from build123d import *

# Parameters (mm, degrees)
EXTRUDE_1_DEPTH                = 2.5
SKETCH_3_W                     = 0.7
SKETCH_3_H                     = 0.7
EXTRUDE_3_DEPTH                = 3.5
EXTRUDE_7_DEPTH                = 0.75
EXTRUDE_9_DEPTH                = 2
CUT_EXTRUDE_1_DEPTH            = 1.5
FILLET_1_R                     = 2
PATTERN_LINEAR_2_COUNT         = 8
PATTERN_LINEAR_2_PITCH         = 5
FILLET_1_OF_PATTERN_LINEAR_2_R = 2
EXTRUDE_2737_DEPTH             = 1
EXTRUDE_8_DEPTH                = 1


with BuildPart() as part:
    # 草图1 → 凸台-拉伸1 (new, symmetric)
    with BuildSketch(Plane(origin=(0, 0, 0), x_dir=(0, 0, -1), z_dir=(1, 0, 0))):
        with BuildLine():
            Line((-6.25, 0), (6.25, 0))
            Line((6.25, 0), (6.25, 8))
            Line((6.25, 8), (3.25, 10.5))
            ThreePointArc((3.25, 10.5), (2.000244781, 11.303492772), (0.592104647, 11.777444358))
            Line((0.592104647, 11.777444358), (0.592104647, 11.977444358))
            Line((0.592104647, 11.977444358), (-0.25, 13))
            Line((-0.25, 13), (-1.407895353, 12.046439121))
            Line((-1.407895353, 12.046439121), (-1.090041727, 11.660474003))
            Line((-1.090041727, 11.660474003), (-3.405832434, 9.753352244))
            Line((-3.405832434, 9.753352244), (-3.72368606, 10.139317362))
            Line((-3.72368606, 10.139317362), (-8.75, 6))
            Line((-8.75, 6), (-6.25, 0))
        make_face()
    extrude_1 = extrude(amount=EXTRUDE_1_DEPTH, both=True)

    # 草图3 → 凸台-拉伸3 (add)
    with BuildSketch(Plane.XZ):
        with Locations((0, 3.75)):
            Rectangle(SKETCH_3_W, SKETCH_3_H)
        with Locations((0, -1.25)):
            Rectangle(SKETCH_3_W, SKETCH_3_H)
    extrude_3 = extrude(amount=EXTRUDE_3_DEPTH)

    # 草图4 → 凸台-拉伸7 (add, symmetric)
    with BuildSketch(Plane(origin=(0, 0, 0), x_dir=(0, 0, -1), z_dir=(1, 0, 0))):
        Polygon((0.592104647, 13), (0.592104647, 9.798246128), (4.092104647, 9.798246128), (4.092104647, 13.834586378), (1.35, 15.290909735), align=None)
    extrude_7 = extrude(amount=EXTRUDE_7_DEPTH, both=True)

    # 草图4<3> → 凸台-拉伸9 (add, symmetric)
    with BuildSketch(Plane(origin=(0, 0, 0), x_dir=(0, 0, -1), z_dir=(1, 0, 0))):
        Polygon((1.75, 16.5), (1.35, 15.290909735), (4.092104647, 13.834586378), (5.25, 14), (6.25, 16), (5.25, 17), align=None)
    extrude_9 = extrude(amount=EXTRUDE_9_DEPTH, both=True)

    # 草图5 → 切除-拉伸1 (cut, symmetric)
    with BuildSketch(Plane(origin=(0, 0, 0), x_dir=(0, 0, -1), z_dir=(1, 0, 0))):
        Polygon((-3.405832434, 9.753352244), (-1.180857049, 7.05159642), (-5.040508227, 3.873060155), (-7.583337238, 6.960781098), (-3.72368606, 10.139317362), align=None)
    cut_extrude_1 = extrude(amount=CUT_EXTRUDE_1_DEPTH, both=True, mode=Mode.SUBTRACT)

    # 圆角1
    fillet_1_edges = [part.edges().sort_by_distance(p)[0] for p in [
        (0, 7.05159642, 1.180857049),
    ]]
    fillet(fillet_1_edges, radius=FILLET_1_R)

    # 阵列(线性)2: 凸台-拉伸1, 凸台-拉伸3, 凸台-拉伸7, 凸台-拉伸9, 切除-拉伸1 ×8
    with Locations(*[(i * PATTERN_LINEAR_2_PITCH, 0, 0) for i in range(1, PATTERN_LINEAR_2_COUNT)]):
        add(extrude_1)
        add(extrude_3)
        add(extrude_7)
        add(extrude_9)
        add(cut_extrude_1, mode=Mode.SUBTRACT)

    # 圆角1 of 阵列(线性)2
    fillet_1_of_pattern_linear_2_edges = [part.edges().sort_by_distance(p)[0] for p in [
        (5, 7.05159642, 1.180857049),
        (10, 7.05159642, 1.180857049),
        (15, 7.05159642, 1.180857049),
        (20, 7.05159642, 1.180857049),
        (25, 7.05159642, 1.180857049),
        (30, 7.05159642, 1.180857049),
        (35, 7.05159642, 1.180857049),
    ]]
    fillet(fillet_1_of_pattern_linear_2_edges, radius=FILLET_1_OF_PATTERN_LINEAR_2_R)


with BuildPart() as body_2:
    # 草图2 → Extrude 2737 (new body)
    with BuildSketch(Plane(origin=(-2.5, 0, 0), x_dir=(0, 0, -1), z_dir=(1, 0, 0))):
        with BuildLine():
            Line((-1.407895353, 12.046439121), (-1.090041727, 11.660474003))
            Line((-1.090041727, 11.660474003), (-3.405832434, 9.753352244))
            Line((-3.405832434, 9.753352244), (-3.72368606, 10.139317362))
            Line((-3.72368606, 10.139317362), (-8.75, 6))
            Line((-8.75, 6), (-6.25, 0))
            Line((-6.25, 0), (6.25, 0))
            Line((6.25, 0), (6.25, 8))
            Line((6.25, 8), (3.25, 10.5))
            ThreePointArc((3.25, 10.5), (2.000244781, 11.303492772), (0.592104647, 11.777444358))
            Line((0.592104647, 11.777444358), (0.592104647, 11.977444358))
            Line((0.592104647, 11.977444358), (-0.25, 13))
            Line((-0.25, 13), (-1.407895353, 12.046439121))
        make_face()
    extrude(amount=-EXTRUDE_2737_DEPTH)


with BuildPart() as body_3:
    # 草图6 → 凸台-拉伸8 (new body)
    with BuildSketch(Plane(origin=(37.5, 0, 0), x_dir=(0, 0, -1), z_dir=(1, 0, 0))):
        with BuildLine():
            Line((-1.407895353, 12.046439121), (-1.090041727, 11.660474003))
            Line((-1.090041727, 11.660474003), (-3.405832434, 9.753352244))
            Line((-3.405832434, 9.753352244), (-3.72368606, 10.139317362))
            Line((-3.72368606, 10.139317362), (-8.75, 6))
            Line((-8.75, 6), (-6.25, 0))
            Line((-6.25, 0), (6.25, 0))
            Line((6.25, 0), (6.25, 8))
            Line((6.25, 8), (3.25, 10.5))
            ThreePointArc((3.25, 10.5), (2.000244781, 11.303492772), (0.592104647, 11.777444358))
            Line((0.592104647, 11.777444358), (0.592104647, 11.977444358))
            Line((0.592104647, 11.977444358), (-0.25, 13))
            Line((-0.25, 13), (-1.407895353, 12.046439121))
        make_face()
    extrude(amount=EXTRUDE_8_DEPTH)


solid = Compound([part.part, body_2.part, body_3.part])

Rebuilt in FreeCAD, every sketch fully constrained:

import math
import FreeCAD as App
import Part
import Sketcher
from FreeCAD import Vector
Q = App.Units.Quantity


def edges_at(feature, points):
    """Names of the edges that pass closest to the given points."""
    edges = feature.Shape.Edges
    near = lambda p: min(range(len(edges)), key=lambda i: edges[i].distToShape(Part.Vertex(*p))[0])
    return sorted({f"Edge{near(p) + 1}" for p in points})


def add_polygon(sketch, points):
    """Adds a closed chain of lines whose ends are joined by coincident constraints."""
    first, n = sketch.GeometryCount, len(points)
    for a, b in zip(points, points[1:] + points[:1]):
        sketch.addGeometry(Part.LineSegment(App.Vector(*a, 0), App.Vector(*b, 0)), False)
    for i in range(n):
        sketch.addConstraint(Sketcher.Constraint("Coincident", first + i, 2, first + (i + 1) % n, 1))

doc = App.newDocument("Part")
params = doc.addObject("Spreadsheet::Sheet", "Params")
for row, (alias, value) in enumerate([
    ("sketch1_width", "8 mm"),
    ("sketch1_length", "3 mm"),
    ("sketch1_width2", "0.2 mm"),
    ("sketch1_height", "12.5 mm"),
    ("sketch1_length2", "1.5 mm"),
    ("pad1_length", "5 mm"),
    ("sketch2_width", "0.7 mm"),
    ("pad2_length", "3.5 mm"),
    ("sketch3_height", "3.5 mm"),
    ("pad3_length", "1.5 mm"),
    ("pad4_length", "4 mm"),
    ("sketch5_length", "5 mm"),
    ("sketch5_length2", "4 mm"),
    ("sketch5_length3", "3.5 mm"),
    ("pocket1_length", "3 mm"),
    ("fillet_radius", "2 mm"),
    ("linearpattern_pitch", "5 mm"),
    ("fillet2_radius", "2 mm"),
    ("sketch6_width", "8 mm"),
    ("sketch6_length", "3 mm"),
    ("sketch6_width2", "0.2 mm"),
    ("sketch6_height", "12.5 mm"),
    ("sketch6_length2", "0.5 mm"),
    ("pad5_length", "1 mm"),
    ("sketch7_width", "8 mm"),
    ("sketch7_length", "3 mm"),
    ("sketch7_width2", "0.2 mm"),
    ("sketch7_height", "12.5 mm"),
    ("sketch7_length2", "0.5 mm"),
    ("pad6_length", "1 mm"),
], start=1):
    params.set(f"A{row}", alias)
    params.set(f"B{row}", "=" + value)
    params.setAlias(f"B{row}", alias)

body = doc.addObject("PartDesign::Body", "Body")

# Sketch on YZ plane
sketch1 = body.newObject("Sketcher::SketchObject", "Sketch")
sketch1.AttachmentSupport = (doc.getObject("YZ_Plane"), [""])
sketch1.MapMode = "FlatFace"
sketch1.addGeometry([
    Part.LineSegment(Vector(0, 6.25, 0), Vector(0, -6.25, 0)),  # 0
    Part.LineSegment(Vector(0, -6.25, 0), Vector(8, -6.25, 0)),  # 1
    Part.LineSegment(Vector(8, -6.25, 0), Vector(10.5, -3.25, 0)),  # 2
    Part.ArcOfCircle(Part.Circle(Vector(5.86, 0.62, 0), Vector(0, 0, 1), 6.04), math.radians(-40), math.radians(-12)),  # 3
    Part.LineSegment(Vector(11.78, -0.59, 0), Vector(11.98, -0.59, 0)),  # 4
    Part.LineSegment(Vector(11.98, -0.59, 0), Vector(13, 0.25, 0)),  # 5
    Part.LineSegment(Vector(13, 0.25, 0), Vector(12.05, 1.41, 0)),  # 6
    Part.LineSegment(Vector(12.05, 1.41, 0), Vector(11.66, 1.09, 0)),  # 7
    Part.LineSegment(Vector(11.66, 1.09, 0), Vector(9.75, 3.41, 0)),  # 8
    Part.LineSegment(Vector(9.75, 3.41, 0), Vector(10.14, 3.72, 0)),  # 9
    Part.LineSegment(Vector(10.14, 3.72, 0), Vector(6, 8.75, 0)),  # 10
    Part.LineSegment(Vector(6, 8.75, 0), Vector(0, 6.25, 0)),  # 11
], False)
sketch1.addConstraint([
    Sketcher.Constraint("Coincident", 0, 2, 1, 1),
    Sketcher.Constraint("Coincident", 1, 2, 2, 1),
    Sketcher.Constraint("Tangent", 2, 2, 3, 1),
    Sketcher.Constraint("Coincident", 3, 2, 4, 1),
    Sketcher.Constraint("Coincident", 4, 2, 5, 1),
    Sketcher.Constraint("Coincident", 5, 2, 6, 1),
    Sketcher.Constraint("Coincident", 6, 2, 7, 1),
    Sketcher.Constraint("Coincident", 7, 2, 8, 1),
    Sketcher.Constraint("Coincident", 8, 2, 9, 1),
    Sketcher.Constraint("Coincident", 9, 2, 10, 1),
    Sketcher.Constraint("Coincident", 10, 2, 11, 1),
    Sketcher.Constraint("Coincident", 11, 2, 0, 1),
    Sketcher.Constraint("Vertical", 0),
    Sketcher.Constraint("Horizontal", 1),
    Sketcher.Constraint("Horizontal", 4),
    Sketcher.Constraint("Symmetric", 0, 2, 11, 2, -1, 1),
    Sketcher.Constraint("Perpendicular", 5, 6),
    Sketcher.Constraint("Perpendicular", 6, 7),
    Sketcher.Constraint("Perpendicular", 7, 8),
    Sketcher.Constraint("Perpendicular", 8, 9),
    Sketcher.Constraint("Perpendicular", 9, 10),
    Sketcher.Constraint("Equal", 7, 9),
    Sketcher.Constraint("DistanceX", 1, 1, 1, 2, 8.0),
    Sketcher.Constraint("Distance", 8, 3.0),
    Sketcher.Constraint("DistanceX", 4, 1, 4, 2, 0.2),
    Sketcher.Constraint("DistanceY", 0, 2, 0, 1, 12.5),
    Sketcher.Constraint("DistanceX", -1, 1, 5, 2, 13.0),
    Sketcher.Constraint("DistanceX", -1, 1, 10, 2, 6.0),
    Sketcher.Constraint("DistanceY", 1, 2, 2, 2, 3.0),
    Sketcher.Constraint("DistanceY", 4, 2, 6, 2, 2.0),
    Sketcher.Constraint("Distance", 6, 1.5),
    Sketcher.Constraint("Distance", 7, 0.5),
    Sketcher.Constraint("Distance", 11, 6.5),
    Sketcher.Constraint("DistanceX", -1, 1, 2, 2, 10.5),
    Sketcher.Constraint("DistanceY", 2, 2, 5, 2, 3.5),
])
sketch1.setExpression("Constraints[22]", "Params.sketch1_width")
sketch1.setExpression("Constraints[23]", "Params.sketch1_length")
sketch1.setExpression("Constraints[24]", "Params.sketch1_width2")
sketch1.setExpression("Constraints[25]", "Params.sketch1_height")
sketch1.setExpression("Constraints[30]", "Params.sketch1_length2")
pad1 = body.newObject("PartDesign::Pad", "Pad")
pad1.Profile = sketch1
pad1.setExpression("Length", "Params.pad1_length")
pad1.Midplane = True

# Sketch on XZ plane
sketch2 = body.newObject("Sketcher::SketchObject", "Sketch001")
sketch2.AttachmentSupport = (doc.getObject("XZ_Plane"), [""])
sketch2.MapMode = "FlatFace"
add_polygon(sketch2, [(-0.3, 4.1), (-0.3, 3.4), (0.3, 3.4), (0.3, 4.1)])  # lines 0-3
add_polygon(sketch2, [(-0.3, -0.9), (-0.3, -1.6), (0.3, -1.6), (0.3, -0.9)])  # lines 4-7
sketch2.addConstraint([
    Sketcher.Constraint("Vertical", 0),
    Sketcher.Constraint("Horizontal", 1),
    Sketcher.Constraint("Vertical", 2),
    Sketcher.Constraint("Horizontal", 3),
    Sketcher.Constraint("Vertical", 4),
    Sketcher.Constraint("Horizontal", 5),
    Sketcher.Constraint("Vertical", 6),
    Sketcher.Constraint("Horizontal", 7),
    Sketcher.Constraint("Vertical", 3, 2, 4, 2),
    Sketcher.Constraint("Vertical", 2, 2, 5, 2),
    Sketcher.Constraint("Equal", 7, 0),
    Sketcher.Constraint("Equal", 2, 4),
    Sketcher.Constraint("DistanceX", 1, 1, 1, 2, 0.7),
    Sketcher.Constraint("DistanceY", 4, 2, 0, 2, 5.0),
    Sketcher.Constraint("DistanceY", -1, 1, 0, 2, 3.4),
    Sketcher.Constraint("DistanceX", 0, 2, -1, 1, 0.35),
])
sketch2.setExpression("Constraints[20]", "Params.sketch2_width")
pad2 = body.newObject("PartDesign::Pad", "Pad001")
pad2.Profile = sketch2
pad2.setExpression("Length", "Params.pad2_length")

# Sketch on YZ plane
sketch3 = body.newObject("Sketcher::SketchObject", "Sketch002")
sketch3.AttachmentSupport = (doc.getObject("YZ_Plane"), [""])
sketch3.MapMode = "FlatFace"
add_polygon(sketch3, [(13, -0.6), (9.8, -0.6), (9.8, -4.1), (13.8, -4.1), (15.3, -1.4)])  # lines 0-4
sketch3.addConstraint([
    Sketcher.Constraint("Horizontal", 0),
    Sketcher.Constraint("Vertical", 1),
    Sketcher.Constraint("Horizontal", 2),
    Sketcher.Constraint("DistanceY", 1, 2, 1, 1, 3.5),
    Sketcher.Constraint("DistanceX", -1, 1, 4, 2, 13.0),
    Sketcher.Constraint("DistanceY", 3, 2, -1, 1, 1.35),
    Sketcher.Constraint("DistanceX", 2, 1, 2, 2, 4.03634),
    Sketcher.Constraint("Distance", 4, 2.413022),
    Sketcher.Constraint("DistanceX", 0, 2, 0, 1, 3.201754),
    Sketcher.Constraint("DistanceX", -1, 1, 3, 2, 15.29091),
])
sketch3.setExpression("Constraints[8]", "Params.sketch3_height")
pad3 = body.newObject("PartDesign::Pad", "Pad002")
pad3.Profile = sketch3
pad3.setExpression("Length", "Params.pad3_length")
pad3.Midplane = True

# Sketch on YZ plane
sketch4 = body.newObject("Sketcher::SketchObject", "Sketch003")
sketch4.AttachmentSupport = (doc.getObject("YZ_Plane"), [""])
sketch4.MapMode = "FlatFace"
add_polygon(sketch4, [(16.5, -1.8), (15.3, -1.4), (13.8, -4.1), (14, -5.2), (16, -6.2), (17, -5.2)])  # lines 0-5
sketch4.addConstraint([
    Sketcher.Constraint("Parallel", 2, 5),
    Sketcher.Constraint("Horizontal", 2, 2, 4, 2),
    Sketcher.Constraint("Angle", 4, Q("45 deg")),
    Sketcher.Constraint("DistanceX", -1, 1, 2, 2, 14.0),
    Sketcher.Constraint("DistanceX", -1, 1, 3, 2, 16.0),
    Sketcher.Constraint("DistanceX", -1, 1, 4, 2, 17.0),
    Sketcher.Constraint("DistanceX", -1, 1, 5, 2, 16.5),
    Sketcher.Constraint("DistanceY", 2, 2, 0, 2, 3.9),
    Sketcher.Constraint("DistanceY", 5, 2, 0, 2, 0.4),
    Sketcher.Constraint("DistanceY", 0, 2, -1, 1, 1.35),
    Sketcher.Constraint("Distance", 0, 1.273538),
    Sketcher.Constraint("Distance", 2, 1.169651),
])
pad4 = body.newObject("PartDesign::Pad", "Pad003")
pad4.Profile = sketch4
pad4.setExpression("Length", "Params.pad4_length")
pad4.Midplane = True

# Sketch on YZ plane
sketch5 = body.newObject("Sketcher::SketchObject", "Sketch004")
sketch5.AttachmentSupport = (doc.getObject("YZ_Plane"), [""])
sketch5.MapMode = "FlatFace"
add_polygon(sketch5, [(7.05, 1.18), (9.75, 3.41), (10.14, 3.72), (6.96, 7.58), (3.87, 5.04)])  # lines 0-4
sketch5.addConstraint([
    Sketcher.Constraint("Parallel", 0, 1),
    Sketcher.Constraint("Perpendicular", 1, 2),
    Sketcher.Constraint("Perpendicular", 2, 3),
    Sketcher.Constraint("Perpendicular", 3, 4),
    Sketcher.Constraint("Distance", 2, 5.0),
    Sketcher.Constraint("Distance", 3, 4.0),
    Sketcher.Constraint("Distance", 0, 3.5),
    Sketcher.Constraint("DistanceX", -1, 1, 2, 2, 6.960781),
    Sketcher.Constraint("DistanceX", -1, 1, 3, 2, 3.87306),
    Sketcher.Constraint("DistanceY", -1, 1, 3, 2, 5.040508),
])
sketch5.setExpression("Constraints[9]", "Params.sketch5_length")
sketch5.setExpression("Constraints[10]", "Params.sketch5_length2")
sketch5.setExpression("Constraints[11]", "Params.sketch5_length3")
pocket1 = body.newObject("PartDesign::Pocket", "Pocket")
pocket1.Profile = sketch5
pocket1.setExpression("Length", "Params.pocket1_length")
pocket1.Midplane = True
doc.recompute()

fillet = body.newObject("PartDesign::Fillet", "Fillet")
fillet.Base = (pocket1, edges_at(pocket1, [(0, 7.052, 1.181)]))
fillet.setExpression("Radius", "Params.fillet_radius")
doc.recompute()

linearpattern = body.newObject("PartDesign::LinearPattern", "LinearPattern")
linearpattern.Originals = [pad1, pad2, pad3, pad4, pocket1]
linearpattern.Direction = (doc.getObject("X_Axis"), [""])
linearpattern.Mode = "offset"
linearpattern.setExpression("Offset", "Params.linearpattern_pitch")
linearpattern.Occurrences = 8
body.Tip = linearpattern
doc.recompute()

fillet2 = body.newObject("PartDesign::Fillet", "Fillet001")
fillet2.Base = (linearpattern, edges_at(linearpattern, [
    (5, 7.052, 1.181),
    (10, 7.052, 1.181),
    (15, 7.052, 1.181),
    (20, 7.052, 1.181),
    (25, 7.052, 1.181),
    (30, 7.052, 1.181),
    (35, 7.052, 1.181),
]))
fillet2.setExpression("Radius", "Params.fillet2_radius")
body2 = doc.addObject("PartDesign::Body", "Body001")

# Sketch on YZ plane
sketch6 = body2.newObject("Sketcher::SketchObject", "Sketch005")
sketch6.AttachmentSupport = (doc.getObject("YZ_Plane001"), [""])
sketch6.MapMode = "FlatFace"
sketch6.AttachmentOffset = App.Placement(Vector(0, 0, -2.5), App.Rotation())
sketch6.addGeometry([
    Part.LineSegment(Vector(12.05, 1.41, 0), Vector(11.66, 1.09, 0)),  # 0
    Part.LineSegment(Vector(11.66, 1.09, 0), Vector(9.75, 3.41, 0)),  # 1
    Part.LineSegment(Vector(9.75, 3.41, 0), Vector(10.14, 3.72, 0)),  # 2
    Part.LineSegment(Vector(10.14, 3.72, 0), Vector(6, 8.75, 0)),  # 3
    Part.LineSegment(Vector(6, 8.75, 0), Vector(0, 6.25, 0)),  # 4
    Part.LineSegment(Vector(0, 6.25, 0), Vector(0, -6.25, 0)),  # 5
    Part.LineSegment(Vector(0, -6.25, 0), Vector(8, -6.25, 0)),  # 6
    Part.LineSegment(Vector(8, -6.25, 0), Vector(10.5, -3.25, 0)),  # 7
    Part.ArcOfCircle(Part.Circle(Vector(5.86, 0.62, 0), Vector(0, 0, 1), 6.04), math.radians(-40), math.radians(-12)),  # 8
    Part.LineSegment(Vector(11.78, -0.59, 0), Vector(11.98, -0.59, 0)),  # 9
    Part.LineSegment(Vector(11.98, -0.59, 0), Vector(13, 0.25, 0)),  # 10
    Part.LineSegment(Vector(13, 0.25, 0), Vector(12.05, 1.41, 0)),  # 11
], False)
sketch6.addConstraint([
    Sketcher.Constraint("Coincident", 0, 2, 1, 1),
    Sketcher.Constraint("Coincident", 1, 2, 2, 1),
    Sketcher.Constraint("Coincident", 2, 2, 3, 1),
    Sketcher.Constraint("Coincident", 3, 2, 4, 1),
    Sketcher.Constraint("Coincident", 4, 2, 5, 1),
    Sketcher.Constraint("Coincident", 5, 2, 6, 1),
    Sketcher.Constraint("Coincident", 6, 2, 7, 1),
    Sketcher.Constraint("Tangent", 7, 2, 8, 1),
    Sketcher.Constraint("Coincident", 8, 2, 9, 1),
    Sketcher.Constraint("Coincident", 9, 2, 10, 1),
    Sketcher.Constraint("Coincident", 10, 2, 11, 1),
    Sketcher.Constraint("Coincident", 11, 2, 0, 1),
    Sketcher.Constraint("Vertical", 5),
    Sketcher.Constraint("Horizontal", 6),
    Sketcher.Constraint("Horizontal", 9),
    Sketcher.Constraint("Symmetric", 4, 2, 5, 2, -1, 1),
    Sketcher.Constraint("Perpendicular", 0, 1),
    Sketcher.Constraint("Perpendicular", 1, 2),
    Sketcher.Constraint("Perpendicular", 2, 3),
    Sketcher.Constraint("Perpendicular", 3, 10),
    Sketcher.Constraint("Perpendicular", 10, 11),
    Sketcher.Constraint("Equal", 0, 2),
    Sketcher.Constraint("DistanceX", 6, 1, 6, 2, 8.0),
    Sketcher.Constraint("Distance", 1, 3.0),
    Sketcher.Constraint("DistanceX", 9, 1, 9, 2, 0.2),
    Sketcher.Constraint("DistanceY", 5, 2, 5, 1, 12.5),
    Sketcher.Constraint("DistanceX", -1, 1, 3, 2, 6.0),
    Sketcher.Constraint("DistanceX", -1, 1, 10, 2, 13.0),
    Sketcher.Constraint("DistanceY", 6, 2, 7, 2, 3.0),
    Sketcher.Constraint("DistanceY", 9, 2, 11, 2, 2.0),
    Sketcher.Constraint("Distance", 0, 0.5),
    Sketcher.Constraint("Distance", 4, 6.5),
    Sketcher.Constraint("Distance", 11, 1.5),
    Sketcher.Constraint("DistanceX", -1, 1, 7, 2, 10.5),
    Sketcher.Constraint("DistanceY", 7, 2, 10, 2, 3.5),
])
sketch6.setExpression("Constraints[22]", "Params.sketch6_width")
sketch6.setExpression("Constraints[23]", "Params.sketch6_length")
sketch6.setExpression("Constraints[24]", "Params.sketch6_width2")
sketch6.setExpression("Constraints[25]", "Params.sketch6_height")
sketch6.setExpression("Constraints[30]", "Params.sketch6_length2")
pad5 = body2.newObject("PartDesign::Pad", "Pad004")
pad5.Profile = sketch6
pad5.setExpression("Length", "Params.pad5_length")
pad5.Reversed = True
body3 = doc.addObject("PartDesign::Body", "Body002")

# Sketch on YZ plane
sketch7 = body3.newObject("Sketcher::SketchObject", "Sketch006")
sketch7.AttachmentSupport = (doc.getObject("YZ_Plane002"), [""])
sketch7.MapMode = "FlatFace"
sketch7.AttachmentOffset = App.Placement(Vector(0, 0, 37.5), App.Rotation())
sketch7.addGeometry([
    Part.LineSegment(Vector(12.05, 1.41, 0), Vector(11.66, 1.09, 0)),  # 0
    Part.LineSegment(Vector(11.66, 1.09, 0), Vector(9.75, 3.41, 0)),  # 1
    Part.LineSegment(Vector(9.75, 3.41, 0), Vector(10.14, 3.72, 0)),  # 2
    Part.LineSegment(Vector(10.14, 3.72, 0), Vector(6, 8.75, 0)),  # 3
    Part.LineSegment(Vector(6, 8.75, 0), Vector(0, 6.25, 0)),  # 4
    Part.LineSegment(Vector(0, 6.25, 0), Vector(0, -6.25, 0)),  # 5
    Part.LineSegment(Vector(0, -6.25, 0), Vector(8, -6.25, 0)),  # 6
    Part.LineSegment(Vector(8, -6.25, 0), Vector(10.5, -3.25, 0)),  # 7
    Part.ArcOfCircle(Part.Circle(Vector(5.86, 0.62, 0), Vector(0, 0, 1), 6.04), math.radians(-40), math.radians(-12)),  # 8
    Part.LineSegment(Vector(11.78, -0.59, 0), Vector(11.98, -0.59, 0)),  # 9
    Part.LineSegment(Vector(11.98, -0.59, 0), Vector(13, 0.25, 0)),  # 10
    Part.LineSegment(Vector(13, 0.25, 0), Vector(12.05, 1.41, 0)),  # 11
], False)
sketch7.addConstraint([
    Sketcher.Constraint("Coincident", 0, 2, 1, 1),
    Sketcher.Constraint("Coincident", 1, 2, 2, 1),
    Sketcher.Constraint("Coincident", 2, 2, 3, 1),
    Sketcher.Constraint("Coincident", 3, 2, 4, 1),
    Sketcher.Constraint("Coincident", 4, 2, 5, 1),
    Sketcher.Constraint("Coincident", 5, 2, 6, 1),
    Sketcher.Constraint("Coincident", 6, 2, 7, 1),
    Sketcher.Constraint("Tangent", 7, 2, 8, 1),
    Sketcher.Constraint("Coincident", 8, 2, 9, 1),
    Sketcher.Constraint("Coincident", 9, 2, 10, 1),
    Sketcher.Constraint("Coincident", 10, 2, 11, 1),
    Sketcher.Constraint("Coincident", 11, 2, 0, 1),
    Sketcher.Constraint("Vertical", 5),
    Sketcher.Constraint("Horizontal", 6),
    Sketcher.Constraint("Horizontal", 9),
    Sketcher.Constraint("Symmetric", 4, 2, 5, 2, -1, 1),
    Sketcher.Constraint("Perpendicular", 0, 1),
    Sketcher.Constraint("Perpendicular", 1, 2),
    Sketcher.Constraint("Perpendicular", 2, 3),
    Sketcher.Constraint("Perpendicular", 3, 10),
    Sketcher.Constraint("Perpendicular", 10, 11),
    Sketcher.Constraint("Equal", 0, 2),
    Sketcher.Constraint("DistanceX", 6, 1, 6, 2, 8.0),
    Sketcher.Constraint("Distance", 1, 3.0),
    Sketcher.Constraint("DistanceX", 9, 1, 9, 2, 0.2),
    Sketcher.Constraint("DistanceY", 5, 2, 5, 1, 12.5),
    Sketcher.Constraint("DistanceX", -1, 1, 3, 2, 6.0),
    Sketcher.Constraint("DistanceX", -1, 1, 10, 2, 13.0),
    Sketcher.Constraint("DistanceY", 6, 2, 7, 2, 3.0),
    Sketcher.Constraint("DistanceY", 9, 2, 11, 2, 2.0),
    Sketcher.Constraint("Distance", 0, 0.5),
    Sketcher.Constraint("Distance", 4, 6.5),
    Sketcher.Constraint("Distance", 11, 1.5),
    Sketcher.Constraint("DistanceX", -1, 1, 7, 2, 10.5),
    Sketcher.Constraint("DistanceY", 7, 2, 10, 2, 3.5),
])
sketch7.setExpression("Constraints[22]", "Params.sketch7_width")
sketch7.setExpression("Constraints[23]", "Params.sketch7_length")
sketch7.setExpression("Constraints[24]", "Params.sketch7_width2")
sketch7.setExpression("Constraints[25]", "Params.sketch7_height")
sketch7.setExpression("Constraints[30]", "Params.sketch7_length2")
pad6 = body3.newObject("PartDesign::Pad", "Pad005")
pad6.Profile = sketch7
pad6.setExpression("Length", "Params.pad6_length")

doc.recompute()
